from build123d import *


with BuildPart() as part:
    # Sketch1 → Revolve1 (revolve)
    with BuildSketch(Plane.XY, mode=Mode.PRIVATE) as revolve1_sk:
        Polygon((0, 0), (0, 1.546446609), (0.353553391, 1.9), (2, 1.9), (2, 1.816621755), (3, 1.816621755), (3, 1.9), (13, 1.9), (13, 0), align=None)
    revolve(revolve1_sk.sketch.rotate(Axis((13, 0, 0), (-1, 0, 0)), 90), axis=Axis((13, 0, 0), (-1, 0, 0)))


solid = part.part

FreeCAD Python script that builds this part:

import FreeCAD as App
import Part
import Sketcher

V = App.Vector
Q = App.Units.Quantity


def add_polygon(sketch, points):
    """Adds a closed chain of lines whose ends are joined by coincident constraints."""
    first, n = sketch.GeometryCount, len(points)
    for a, b in zip(points, points[1:] + points[:1]):
        sketch.addGeometry(Part.LineSegment(App.Vector(*a, 0), App.Vector(*b, 0)), False)
    for i in range(n):
        sketch.addConstraint(Sketcher.Constraint("Coincident", first + i, 2, first + (i + 1) % n, 1))

doc = App.newDocument("Part")
body = doc.addObject("PartDesign::Body", "Body")

# Sketch on XY plane
sketch1 = body.newObject("Sketcher::SketchObject", "Sketch")
sketch1.AttachmentSupport = (doc.getObject("XY_Plane"), [""])
sketch1.MapMode = "FlatFace"
add_polygon(sketch1, [(0, 1.55), (0, 0), (13, 0), (13, 1.9), (3, 1.9), (3, 1.82), (2, 1.82), (2, 1.9), (0.35, 1.9)])  # lines 0-8
sketch1.addConstraint([
    Sketcher.Constraint("Vertical", 0),
    Sketcher.Constraint("Horizontal", 1),
    Sketcher.Constraint("Vertical", 2),
    Sketcher.Constraint("Horizontal", 3),
    Sketcher.Constraint("Vertical", 4),
    Sketcher.Constraint("Horizontal", 5),
    Sketcher.Constraint("Vertical", 6),
    Sketcher.Constraint("Horizontal", 7),
    Sketcher.Constraint("Coincident", 0, 2, -1, 1),
    Sketcher.Constraint("Horizontal", 3, 2, 6, 2),
    Sketcher.Constraint("DistanceX", 1, 1, 1, 2, 13.0),
    Sketcher.Constraint("DistanceX", 3, 2, 3, 1, 10.0),
    Sketcher.Constraint("DistanceX", 5, 2, 5, 1, 1.0),
    Sketcher.Constraint("Angle", 8, Q("-135 deg")),
    Sketcher.Constraint("DistanceY", 2, 1, 2, 2, 1.9),
    Sketcher.Constraint("Distance", 8, 0.5),
    Sketcher.Constraint("DistanceY", 4, 2, 4, 1, 0.083378),
])
revolution = body.newObject("PartDesign::Revolution", "Revolution")
revolution.Profile = sketch1
revolution.ReferenceAxis = (sketch1, ["H_Axis"])
revolution.Angle = 360

doc.recompute()
